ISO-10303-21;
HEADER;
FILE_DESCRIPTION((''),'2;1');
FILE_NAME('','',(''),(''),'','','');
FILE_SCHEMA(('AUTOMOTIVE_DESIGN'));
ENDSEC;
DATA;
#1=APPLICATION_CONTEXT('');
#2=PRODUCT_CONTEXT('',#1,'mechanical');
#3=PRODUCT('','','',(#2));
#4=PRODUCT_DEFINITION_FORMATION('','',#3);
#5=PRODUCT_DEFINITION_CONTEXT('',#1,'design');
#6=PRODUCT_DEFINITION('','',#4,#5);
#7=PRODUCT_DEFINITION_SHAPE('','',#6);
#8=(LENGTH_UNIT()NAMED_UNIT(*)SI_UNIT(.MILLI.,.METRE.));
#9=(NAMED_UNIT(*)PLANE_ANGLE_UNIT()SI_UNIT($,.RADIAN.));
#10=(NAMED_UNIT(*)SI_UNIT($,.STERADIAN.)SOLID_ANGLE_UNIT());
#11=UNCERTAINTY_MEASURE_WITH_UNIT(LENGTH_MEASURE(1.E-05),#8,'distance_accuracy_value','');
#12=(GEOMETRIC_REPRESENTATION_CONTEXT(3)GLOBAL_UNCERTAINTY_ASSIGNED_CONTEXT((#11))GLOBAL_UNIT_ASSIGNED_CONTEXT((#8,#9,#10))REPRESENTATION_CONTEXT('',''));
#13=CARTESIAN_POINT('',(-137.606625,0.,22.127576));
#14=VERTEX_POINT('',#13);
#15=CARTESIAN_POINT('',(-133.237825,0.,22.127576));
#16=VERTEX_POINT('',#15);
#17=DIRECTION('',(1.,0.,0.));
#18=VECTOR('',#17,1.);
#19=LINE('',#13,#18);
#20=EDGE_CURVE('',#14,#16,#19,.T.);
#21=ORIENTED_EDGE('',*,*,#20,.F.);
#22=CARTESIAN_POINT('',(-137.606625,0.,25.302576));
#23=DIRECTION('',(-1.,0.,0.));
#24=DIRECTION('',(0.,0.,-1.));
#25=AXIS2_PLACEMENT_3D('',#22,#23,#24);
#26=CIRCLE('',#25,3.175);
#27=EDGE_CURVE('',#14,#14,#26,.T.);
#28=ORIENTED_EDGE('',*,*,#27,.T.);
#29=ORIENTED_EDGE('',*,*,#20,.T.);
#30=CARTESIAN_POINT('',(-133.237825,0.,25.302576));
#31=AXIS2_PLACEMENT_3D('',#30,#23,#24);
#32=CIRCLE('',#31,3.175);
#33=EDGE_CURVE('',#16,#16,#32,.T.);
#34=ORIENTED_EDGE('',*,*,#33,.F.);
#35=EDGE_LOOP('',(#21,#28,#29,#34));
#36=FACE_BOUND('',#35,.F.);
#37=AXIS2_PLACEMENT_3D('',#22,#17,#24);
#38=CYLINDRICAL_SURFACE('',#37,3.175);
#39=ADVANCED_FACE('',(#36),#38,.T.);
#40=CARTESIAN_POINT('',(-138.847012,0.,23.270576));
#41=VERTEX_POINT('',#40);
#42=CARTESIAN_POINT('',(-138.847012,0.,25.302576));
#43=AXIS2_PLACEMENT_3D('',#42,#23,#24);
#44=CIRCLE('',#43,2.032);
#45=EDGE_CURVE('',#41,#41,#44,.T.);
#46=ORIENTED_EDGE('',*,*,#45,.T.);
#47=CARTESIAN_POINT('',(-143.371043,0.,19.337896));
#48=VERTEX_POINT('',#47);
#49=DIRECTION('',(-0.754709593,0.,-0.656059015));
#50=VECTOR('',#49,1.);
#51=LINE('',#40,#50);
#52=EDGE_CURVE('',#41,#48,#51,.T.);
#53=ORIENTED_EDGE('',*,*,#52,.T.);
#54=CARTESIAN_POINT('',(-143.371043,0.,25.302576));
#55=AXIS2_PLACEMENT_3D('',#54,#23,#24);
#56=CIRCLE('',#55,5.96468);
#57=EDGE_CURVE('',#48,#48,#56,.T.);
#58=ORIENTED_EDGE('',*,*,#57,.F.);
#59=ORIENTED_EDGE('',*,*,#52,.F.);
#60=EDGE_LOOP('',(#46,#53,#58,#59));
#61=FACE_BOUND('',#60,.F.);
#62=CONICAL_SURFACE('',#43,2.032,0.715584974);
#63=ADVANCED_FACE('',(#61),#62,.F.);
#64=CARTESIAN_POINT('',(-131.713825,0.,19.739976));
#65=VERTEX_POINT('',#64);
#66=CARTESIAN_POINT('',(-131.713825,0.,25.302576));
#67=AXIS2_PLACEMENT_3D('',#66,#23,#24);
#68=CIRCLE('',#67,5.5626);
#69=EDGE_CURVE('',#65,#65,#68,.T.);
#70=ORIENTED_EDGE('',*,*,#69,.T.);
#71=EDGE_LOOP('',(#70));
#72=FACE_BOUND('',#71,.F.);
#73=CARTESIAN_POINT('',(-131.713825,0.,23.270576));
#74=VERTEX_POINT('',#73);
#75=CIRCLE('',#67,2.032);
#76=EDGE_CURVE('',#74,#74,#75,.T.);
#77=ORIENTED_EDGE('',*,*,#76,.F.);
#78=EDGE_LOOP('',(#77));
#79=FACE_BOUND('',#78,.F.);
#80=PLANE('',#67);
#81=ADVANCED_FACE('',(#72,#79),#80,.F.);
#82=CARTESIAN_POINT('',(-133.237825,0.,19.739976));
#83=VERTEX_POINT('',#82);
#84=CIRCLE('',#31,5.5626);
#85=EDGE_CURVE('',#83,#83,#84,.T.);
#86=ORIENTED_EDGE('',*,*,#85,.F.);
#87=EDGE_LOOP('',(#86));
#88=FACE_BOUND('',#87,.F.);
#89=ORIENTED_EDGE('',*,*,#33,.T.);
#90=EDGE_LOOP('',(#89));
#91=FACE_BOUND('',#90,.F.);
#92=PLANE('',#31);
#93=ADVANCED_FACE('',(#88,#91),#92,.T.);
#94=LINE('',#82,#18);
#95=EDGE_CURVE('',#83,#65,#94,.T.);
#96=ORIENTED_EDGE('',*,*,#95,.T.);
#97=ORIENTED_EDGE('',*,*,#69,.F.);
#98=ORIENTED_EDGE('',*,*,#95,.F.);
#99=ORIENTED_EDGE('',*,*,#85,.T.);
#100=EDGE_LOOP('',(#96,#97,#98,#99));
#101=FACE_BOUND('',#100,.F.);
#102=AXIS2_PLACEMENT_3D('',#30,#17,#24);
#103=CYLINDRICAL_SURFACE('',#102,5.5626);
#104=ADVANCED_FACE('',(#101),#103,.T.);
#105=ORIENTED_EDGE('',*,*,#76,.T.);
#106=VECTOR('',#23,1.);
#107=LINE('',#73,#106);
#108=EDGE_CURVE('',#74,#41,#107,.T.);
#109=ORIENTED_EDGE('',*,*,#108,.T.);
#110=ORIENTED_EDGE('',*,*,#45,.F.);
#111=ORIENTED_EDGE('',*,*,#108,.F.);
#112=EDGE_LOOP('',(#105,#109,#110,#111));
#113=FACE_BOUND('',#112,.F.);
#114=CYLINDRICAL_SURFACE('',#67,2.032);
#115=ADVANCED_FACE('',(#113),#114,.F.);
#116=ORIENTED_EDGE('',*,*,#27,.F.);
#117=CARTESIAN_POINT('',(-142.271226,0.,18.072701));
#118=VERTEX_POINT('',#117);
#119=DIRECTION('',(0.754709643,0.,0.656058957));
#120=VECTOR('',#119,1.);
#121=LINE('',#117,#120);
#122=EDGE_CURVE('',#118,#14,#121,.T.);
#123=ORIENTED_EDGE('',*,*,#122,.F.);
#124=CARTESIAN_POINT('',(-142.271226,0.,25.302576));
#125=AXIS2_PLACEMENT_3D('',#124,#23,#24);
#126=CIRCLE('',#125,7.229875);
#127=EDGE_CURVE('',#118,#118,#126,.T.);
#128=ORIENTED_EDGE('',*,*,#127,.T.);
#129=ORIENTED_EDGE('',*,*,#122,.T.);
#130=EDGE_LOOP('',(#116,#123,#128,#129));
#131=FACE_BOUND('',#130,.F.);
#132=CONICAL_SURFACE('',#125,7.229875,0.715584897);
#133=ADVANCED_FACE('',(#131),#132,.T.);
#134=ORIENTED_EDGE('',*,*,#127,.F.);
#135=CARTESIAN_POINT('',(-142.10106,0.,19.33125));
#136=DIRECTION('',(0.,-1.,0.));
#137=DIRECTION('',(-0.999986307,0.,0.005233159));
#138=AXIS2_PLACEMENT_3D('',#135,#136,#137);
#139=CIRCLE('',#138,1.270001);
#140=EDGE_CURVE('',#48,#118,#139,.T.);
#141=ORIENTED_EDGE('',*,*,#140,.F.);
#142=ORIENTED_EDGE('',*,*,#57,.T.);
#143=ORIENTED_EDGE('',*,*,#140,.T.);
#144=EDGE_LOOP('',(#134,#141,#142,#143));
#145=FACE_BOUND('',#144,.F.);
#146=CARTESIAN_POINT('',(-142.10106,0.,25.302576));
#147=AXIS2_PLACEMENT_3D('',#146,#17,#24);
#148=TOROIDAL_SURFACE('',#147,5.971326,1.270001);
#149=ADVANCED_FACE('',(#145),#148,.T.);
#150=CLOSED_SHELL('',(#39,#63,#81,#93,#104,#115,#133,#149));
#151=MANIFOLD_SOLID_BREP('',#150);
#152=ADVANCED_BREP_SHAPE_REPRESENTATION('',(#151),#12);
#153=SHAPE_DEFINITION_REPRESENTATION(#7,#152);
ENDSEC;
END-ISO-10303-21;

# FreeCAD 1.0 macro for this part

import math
import FreeCAD as App
import Part
import Sketcher

V = App.Vector
Q = App.Units.Quantity

doc = App.newDocument("Part")
body = doc.addObject("PartDesign::Body", "Body")

# Sketch on XZ plane
sketch1 = body.newObject("Sketcher::SketchObject", "Sketch")
sketch1.AttachmentSupport = (doc.getObject("XZ_Plane"), [""])
sketch1.MapMode = "FlatFace"
sketch1.addGeometry([
    Part.LineSegment(V(-131.7, 19.7, 0), V(-131.7, 23.3, 0)),  # 0
    Part.LineSegment(V(-131.7, 23.3, 0), V(-138.8, 23.3, 0)),  # 1
    Part.LineSegment(V(-138.8, 23.3, 0), V(-143.4, 19.3, 0)),  # 2
    Part.ArcOfCircle(Part.Circle(V(-142.1, 19.3, 0), V(0, 0, 1), 1.3), math.radians(180), math.radians(262)),  # 3
    Part.LineSegment(V(-142.3, 18.1, 0), V(-137.6, 22.1, 0)),  # 4
    Part.LineSegment(V(-137.6, 22.1, 0), V(-133.2, 22.1, 0)),  # 5
    Part.LineSegment(V(-133.2, 22.1, 0), V(-133.2, 19.7, 0)),  # 6
    Part.LineSegment(V(-133.2, 19.7, 0), V(-131.7, 19.7, 0)),  # 7
], False)
sketch1.addGeometry(Part.LineSegment(V(-131.7, 25.3, 0), V(-143.4, 25.3, 0)), True)  # axis
sketch1.addConstraint([
    Sketcher.Constraint("Coincident", 0, 2, 1, 1),
    Sketcher.Constraint("Coincident", 1, 2, 2, 1),
    Sketcher.Constraint("Coincident", 2, 2, 3, 1),
    Sketcher.Constraint("Coincident", 3, 2, 4, 1),
    Sketcher.Constraint("Coincident", 4, 2, 5, 1),
    Sketcher.Constraint("Coincident", 5, 2, 6, 1),
    Sketcher.Constraint("Coincident", 6, 2, 7, 1),
    Sketcher.Constraint("Coincident", 7, 2, 0, 1),
    Sketcher.Constraint("Vertical", 0),
    Sketcher.Constraint("Horizontal", 1),
    Sketcher.Constraint("Horizontal", 5),
    Sketcher.Constraint("Vertical", 6),
    Sketcher.Constraint("Horizontal", 7),
    Sketcher.Constraint("Horizontal", 8),
    Sketcher.Constraint("Parallel", 2, 4),
    Sketcher.Constraint("Vertical", 7, 2, 8, 1),
    Sketcher.Constraint("Vertical", 2, 2, 8, 2),
    Sketcher.Constraint("Radius", 3, Q("0.05 in")),
    Sketcher.Constraint("Angle", 2, Q("-139.000001 deg")),
    Sketcher.Constraint("DistanceX", 7, 1, 7, 2, Q("0.06 in")),
    Sketcher.Constraint("DistanceX", 5, 1, 5, 2, Q("0.172 in")),
    Sketcher.Constraint("DistanceY", 0, 1, 0, 2, Q("0.139 in")),
    Sketcher.Constraint("DistanceY", 6, 2, 6, 1, Q("0.094 in")),
    Sketcher.Constraint("DistanceY", 0, 2, 8, 1, Q("0.08 in")),
    Sketcher.Constraint("Distance", 2, Q("0.236 in")),
    Sketcher.Constraint("DistanceX", 2, 2, 3, 2, Q("0.0432999 in")),
    Sketcher.Constraint("DistanceY", -1, 1, 3, 2, Q("18.072701 mm")),
    Sketcher.Constraint("DistanceX", 3, 2, 0, 2, Q("10.557401 mm")),
    Sketcher.Constraint("DistanceX", 3, 3, -1, 1, Q("142.10106 mm")),
])
revolution = body.newObject("PartDesign::Revolution", "Revolution")
revolution.Profile = sketch1
revolution.ReferenceAxis = (sketch1, ["Axis0"])
revolution.Angle = 360

doc.recompute()
